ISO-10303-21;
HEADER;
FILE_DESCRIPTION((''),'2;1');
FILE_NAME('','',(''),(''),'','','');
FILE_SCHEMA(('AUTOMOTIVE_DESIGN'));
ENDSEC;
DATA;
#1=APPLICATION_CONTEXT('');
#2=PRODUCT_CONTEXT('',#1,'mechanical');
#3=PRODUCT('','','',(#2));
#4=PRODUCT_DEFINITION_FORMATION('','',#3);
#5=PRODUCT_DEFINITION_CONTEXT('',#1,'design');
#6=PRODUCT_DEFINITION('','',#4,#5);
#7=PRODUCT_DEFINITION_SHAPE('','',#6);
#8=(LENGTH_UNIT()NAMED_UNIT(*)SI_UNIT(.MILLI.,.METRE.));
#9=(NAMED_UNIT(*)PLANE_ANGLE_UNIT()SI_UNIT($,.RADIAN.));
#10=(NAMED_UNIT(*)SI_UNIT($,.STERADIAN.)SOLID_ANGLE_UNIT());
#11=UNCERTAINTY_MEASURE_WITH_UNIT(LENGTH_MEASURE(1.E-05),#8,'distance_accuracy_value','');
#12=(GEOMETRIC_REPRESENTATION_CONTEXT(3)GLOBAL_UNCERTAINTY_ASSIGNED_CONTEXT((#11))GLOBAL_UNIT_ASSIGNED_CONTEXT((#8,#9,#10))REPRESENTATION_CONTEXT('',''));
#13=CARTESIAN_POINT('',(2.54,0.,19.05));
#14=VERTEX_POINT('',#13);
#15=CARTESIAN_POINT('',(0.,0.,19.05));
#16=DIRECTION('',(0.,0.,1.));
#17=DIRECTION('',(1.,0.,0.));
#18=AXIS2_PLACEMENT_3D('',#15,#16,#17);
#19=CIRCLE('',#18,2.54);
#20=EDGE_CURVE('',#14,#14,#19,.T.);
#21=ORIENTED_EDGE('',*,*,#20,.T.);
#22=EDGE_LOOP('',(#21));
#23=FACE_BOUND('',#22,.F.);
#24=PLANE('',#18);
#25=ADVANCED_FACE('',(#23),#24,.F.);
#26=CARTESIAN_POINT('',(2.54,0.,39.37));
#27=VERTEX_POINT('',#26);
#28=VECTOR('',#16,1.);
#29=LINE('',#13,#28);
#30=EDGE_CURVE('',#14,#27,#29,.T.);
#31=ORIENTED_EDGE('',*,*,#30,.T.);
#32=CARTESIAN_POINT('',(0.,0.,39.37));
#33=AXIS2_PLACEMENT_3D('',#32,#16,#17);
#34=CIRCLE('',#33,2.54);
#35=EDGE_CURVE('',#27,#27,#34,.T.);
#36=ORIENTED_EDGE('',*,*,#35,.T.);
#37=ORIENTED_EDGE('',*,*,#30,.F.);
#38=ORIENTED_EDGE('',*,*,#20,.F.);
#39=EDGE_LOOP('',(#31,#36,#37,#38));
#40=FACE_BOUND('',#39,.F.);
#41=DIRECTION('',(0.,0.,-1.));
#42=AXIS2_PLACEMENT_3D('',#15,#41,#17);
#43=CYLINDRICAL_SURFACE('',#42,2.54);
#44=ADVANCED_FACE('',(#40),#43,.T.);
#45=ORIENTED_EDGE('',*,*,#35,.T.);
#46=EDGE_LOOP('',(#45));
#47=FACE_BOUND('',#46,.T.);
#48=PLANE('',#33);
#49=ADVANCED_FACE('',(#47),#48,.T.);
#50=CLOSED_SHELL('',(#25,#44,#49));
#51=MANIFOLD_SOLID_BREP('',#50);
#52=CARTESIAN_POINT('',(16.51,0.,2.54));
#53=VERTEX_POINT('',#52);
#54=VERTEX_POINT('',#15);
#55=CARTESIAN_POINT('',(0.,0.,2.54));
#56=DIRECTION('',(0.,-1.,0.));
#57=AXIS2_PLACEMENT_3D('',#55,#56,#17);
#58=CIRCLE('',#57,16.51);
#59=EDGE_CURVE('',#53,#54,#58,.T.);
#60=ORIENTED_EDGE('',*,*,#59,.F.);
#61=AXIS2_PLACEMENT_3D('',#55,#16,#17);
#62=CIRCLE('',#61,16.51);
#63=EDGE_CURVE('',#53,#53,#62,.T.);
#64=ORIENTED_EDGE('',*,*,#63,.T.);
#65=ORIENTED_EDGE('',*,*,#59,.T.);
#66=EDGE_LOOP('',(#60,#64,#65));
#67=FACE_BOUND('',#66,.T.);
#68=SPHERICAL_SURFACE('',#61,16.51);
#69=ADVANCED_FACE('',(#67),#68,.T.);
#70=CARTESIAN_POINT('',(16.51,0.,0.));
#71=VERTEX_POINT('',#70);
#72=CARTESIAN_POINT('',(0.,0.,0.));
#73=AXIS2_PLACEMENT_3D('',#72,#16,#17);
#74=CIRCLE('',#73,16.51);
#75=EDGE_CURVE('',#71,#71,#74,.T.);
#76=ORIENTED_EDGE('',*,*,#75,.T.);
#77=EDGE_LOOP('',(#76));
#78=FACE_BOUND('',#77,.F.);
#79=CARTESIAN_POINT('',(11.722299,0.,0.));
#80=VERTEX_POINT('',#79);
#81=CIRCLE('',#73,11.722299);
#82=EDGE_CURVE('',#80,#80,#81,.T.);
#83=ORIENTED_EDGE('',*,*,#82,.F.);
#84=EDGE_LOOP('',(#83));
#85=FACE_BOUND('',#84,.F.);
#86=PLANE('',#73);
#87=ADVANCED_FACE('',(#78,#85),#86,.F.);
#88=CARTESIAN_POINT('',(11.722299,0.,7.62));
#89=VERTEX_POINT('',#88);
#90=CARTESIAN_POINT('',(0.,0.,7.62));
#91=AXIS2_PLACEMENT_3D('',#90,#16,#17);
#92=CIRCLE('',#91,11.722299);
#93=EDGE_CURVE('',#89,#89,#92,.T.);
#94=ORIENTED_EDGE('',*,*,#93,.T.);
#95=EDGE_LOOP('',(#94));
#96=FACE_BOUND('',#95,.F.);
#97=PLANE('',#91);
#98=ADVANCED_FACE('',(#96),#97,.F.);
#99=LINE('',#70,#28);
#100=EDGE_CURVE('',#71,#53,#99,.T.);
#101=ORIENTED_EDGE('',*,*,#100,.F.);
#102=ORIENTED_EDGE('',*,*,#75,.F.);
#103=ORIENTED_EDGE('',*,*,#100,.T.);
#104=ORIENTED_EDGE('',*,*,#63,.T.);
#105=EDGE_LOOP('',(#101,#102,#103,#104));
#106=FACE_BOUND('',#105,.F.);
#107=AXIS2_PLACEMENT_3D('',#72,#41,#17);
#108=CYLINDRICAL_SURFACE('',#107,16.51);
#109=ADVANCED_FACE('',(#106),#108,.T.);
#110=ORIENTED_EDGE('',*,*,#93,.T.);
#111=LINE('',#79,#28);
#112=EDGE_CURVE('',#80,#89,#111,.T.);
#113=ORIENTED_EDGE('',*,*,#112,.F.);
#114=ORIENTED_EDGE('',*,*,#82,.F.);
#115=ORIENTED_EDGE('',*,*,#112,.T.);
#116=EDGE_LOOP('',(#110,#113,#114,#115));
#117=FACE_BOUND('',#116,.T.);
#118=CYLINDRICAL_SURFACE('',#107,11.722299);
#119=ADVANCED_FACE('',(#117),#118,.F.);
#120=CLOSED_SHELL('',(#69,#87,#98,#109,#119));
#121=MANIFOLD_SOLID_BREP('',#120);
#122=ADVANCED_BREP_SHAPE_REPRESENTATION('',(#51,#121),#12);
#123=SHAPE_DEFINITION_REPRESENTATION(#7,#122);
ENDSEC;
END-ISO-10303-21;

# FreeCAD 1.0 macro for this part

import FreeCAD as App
import Part
import Sketcher
from FreeCAD import Vector
Q = App.Units.Quantity


def edges_at(feature, points):
    """Names of the edges that pass closest to the given points."""
    edges = feature.Shape.Edges
    near = lambda p: min(range(len(edges)), key=lambda i: edges[i].distToShape(Part.Vertex(*p))[0])
    return sorted({f"Edge{near(p) + 1}" for p in points})

doc = App.newDocument("Part")
body = doc.addObject("PartDesign::Body", "Body")
body.AllowCompound = True

# Sketch on XY plane
sketch1 = body.newObject("Sketcher::SketchObject", "Sketch")
sketch1.AttachmentSupport = (doc.getObject("XY_Plane"), [""])
sketch1.MapMode = "FlatFace"
sketch1.addGeometry(Part.Circle(Vector(0, 0, 0), Vector(0, 0, 1), 16.51), False)
sketch1.addConstraint([
    Sketcher.Constraint("Coincident", 0, 3, -1, 1),
    Sketcher.Constraint("Diameter", 0, Q("1.3 in")),
])
pad1 = body.newObject("PartDesign::Pad", "Pad")
pad1.Profile = sketch1
pad1.Length = Q("0.75 in")
doc.recompute()

fillet = body.newObject("PartDesign::Fillet", "Fillet")
fillet.Base = (pad1, edges_at(pad1, [(-16.51, 0, 19.05)]))
fillet.Radius = Q("0.65 in")

# Sketch on XY plane
sketch2 = body.newObject("Sketcher::SketchObject", "Sketch001")
sketch2.AttachmentSupport = (doc.getObject("XY_Plane"), [""])
sketch2.MapMode = "FlatFace"
sketch2.addGeometry(Part.Circle(Vector(0, 0, 0), Vector(0, 0, 1), 11.722299), False)
sketch2.addConstraint([
    Sketcher.Constraint("Coincident", 0, 3, -1, 1),
    Sketcher.Constraint("Diameter", 0, Q("23.444598 mm")),
])
pocket1 = body.newObject("PartDesign::Pocket", "Pocket")
pocket1.Profile = sketch2
pocket1.Length = Q("0.3 in")
pocket1.Reversed = True

# Sketch on XY plane
sketch3 = body.newObject("Sketcher::SketchObject", "Sketch002")
sketch3.AttachmentSupport = (doc.getObject("XY_Plane"), [""])
sketch3.MapMode = "FlatFace"
sketch3.AttachmentOffset = App.Placement(Vector(0, 0, 0.75 * 25.4), App.Rotation())
sketch3.addGeometry(Part.Circle(Vector(0, 0, 0), Vector(0, 0, 1), 2.54), False)
sketch3.addConstraint([
    Sketcher.Constraint("Coincident", 0, 3, -1, 1),
    Sketcher.Constraint("Diameter", 0, Q("0.2 in")),
])
pad2 = body.newObject("PartDesign::Pad", "Pad001")
pad2.Profile = sketch3
pad2.Length = Q("0.8 in")

doc.recompute()
